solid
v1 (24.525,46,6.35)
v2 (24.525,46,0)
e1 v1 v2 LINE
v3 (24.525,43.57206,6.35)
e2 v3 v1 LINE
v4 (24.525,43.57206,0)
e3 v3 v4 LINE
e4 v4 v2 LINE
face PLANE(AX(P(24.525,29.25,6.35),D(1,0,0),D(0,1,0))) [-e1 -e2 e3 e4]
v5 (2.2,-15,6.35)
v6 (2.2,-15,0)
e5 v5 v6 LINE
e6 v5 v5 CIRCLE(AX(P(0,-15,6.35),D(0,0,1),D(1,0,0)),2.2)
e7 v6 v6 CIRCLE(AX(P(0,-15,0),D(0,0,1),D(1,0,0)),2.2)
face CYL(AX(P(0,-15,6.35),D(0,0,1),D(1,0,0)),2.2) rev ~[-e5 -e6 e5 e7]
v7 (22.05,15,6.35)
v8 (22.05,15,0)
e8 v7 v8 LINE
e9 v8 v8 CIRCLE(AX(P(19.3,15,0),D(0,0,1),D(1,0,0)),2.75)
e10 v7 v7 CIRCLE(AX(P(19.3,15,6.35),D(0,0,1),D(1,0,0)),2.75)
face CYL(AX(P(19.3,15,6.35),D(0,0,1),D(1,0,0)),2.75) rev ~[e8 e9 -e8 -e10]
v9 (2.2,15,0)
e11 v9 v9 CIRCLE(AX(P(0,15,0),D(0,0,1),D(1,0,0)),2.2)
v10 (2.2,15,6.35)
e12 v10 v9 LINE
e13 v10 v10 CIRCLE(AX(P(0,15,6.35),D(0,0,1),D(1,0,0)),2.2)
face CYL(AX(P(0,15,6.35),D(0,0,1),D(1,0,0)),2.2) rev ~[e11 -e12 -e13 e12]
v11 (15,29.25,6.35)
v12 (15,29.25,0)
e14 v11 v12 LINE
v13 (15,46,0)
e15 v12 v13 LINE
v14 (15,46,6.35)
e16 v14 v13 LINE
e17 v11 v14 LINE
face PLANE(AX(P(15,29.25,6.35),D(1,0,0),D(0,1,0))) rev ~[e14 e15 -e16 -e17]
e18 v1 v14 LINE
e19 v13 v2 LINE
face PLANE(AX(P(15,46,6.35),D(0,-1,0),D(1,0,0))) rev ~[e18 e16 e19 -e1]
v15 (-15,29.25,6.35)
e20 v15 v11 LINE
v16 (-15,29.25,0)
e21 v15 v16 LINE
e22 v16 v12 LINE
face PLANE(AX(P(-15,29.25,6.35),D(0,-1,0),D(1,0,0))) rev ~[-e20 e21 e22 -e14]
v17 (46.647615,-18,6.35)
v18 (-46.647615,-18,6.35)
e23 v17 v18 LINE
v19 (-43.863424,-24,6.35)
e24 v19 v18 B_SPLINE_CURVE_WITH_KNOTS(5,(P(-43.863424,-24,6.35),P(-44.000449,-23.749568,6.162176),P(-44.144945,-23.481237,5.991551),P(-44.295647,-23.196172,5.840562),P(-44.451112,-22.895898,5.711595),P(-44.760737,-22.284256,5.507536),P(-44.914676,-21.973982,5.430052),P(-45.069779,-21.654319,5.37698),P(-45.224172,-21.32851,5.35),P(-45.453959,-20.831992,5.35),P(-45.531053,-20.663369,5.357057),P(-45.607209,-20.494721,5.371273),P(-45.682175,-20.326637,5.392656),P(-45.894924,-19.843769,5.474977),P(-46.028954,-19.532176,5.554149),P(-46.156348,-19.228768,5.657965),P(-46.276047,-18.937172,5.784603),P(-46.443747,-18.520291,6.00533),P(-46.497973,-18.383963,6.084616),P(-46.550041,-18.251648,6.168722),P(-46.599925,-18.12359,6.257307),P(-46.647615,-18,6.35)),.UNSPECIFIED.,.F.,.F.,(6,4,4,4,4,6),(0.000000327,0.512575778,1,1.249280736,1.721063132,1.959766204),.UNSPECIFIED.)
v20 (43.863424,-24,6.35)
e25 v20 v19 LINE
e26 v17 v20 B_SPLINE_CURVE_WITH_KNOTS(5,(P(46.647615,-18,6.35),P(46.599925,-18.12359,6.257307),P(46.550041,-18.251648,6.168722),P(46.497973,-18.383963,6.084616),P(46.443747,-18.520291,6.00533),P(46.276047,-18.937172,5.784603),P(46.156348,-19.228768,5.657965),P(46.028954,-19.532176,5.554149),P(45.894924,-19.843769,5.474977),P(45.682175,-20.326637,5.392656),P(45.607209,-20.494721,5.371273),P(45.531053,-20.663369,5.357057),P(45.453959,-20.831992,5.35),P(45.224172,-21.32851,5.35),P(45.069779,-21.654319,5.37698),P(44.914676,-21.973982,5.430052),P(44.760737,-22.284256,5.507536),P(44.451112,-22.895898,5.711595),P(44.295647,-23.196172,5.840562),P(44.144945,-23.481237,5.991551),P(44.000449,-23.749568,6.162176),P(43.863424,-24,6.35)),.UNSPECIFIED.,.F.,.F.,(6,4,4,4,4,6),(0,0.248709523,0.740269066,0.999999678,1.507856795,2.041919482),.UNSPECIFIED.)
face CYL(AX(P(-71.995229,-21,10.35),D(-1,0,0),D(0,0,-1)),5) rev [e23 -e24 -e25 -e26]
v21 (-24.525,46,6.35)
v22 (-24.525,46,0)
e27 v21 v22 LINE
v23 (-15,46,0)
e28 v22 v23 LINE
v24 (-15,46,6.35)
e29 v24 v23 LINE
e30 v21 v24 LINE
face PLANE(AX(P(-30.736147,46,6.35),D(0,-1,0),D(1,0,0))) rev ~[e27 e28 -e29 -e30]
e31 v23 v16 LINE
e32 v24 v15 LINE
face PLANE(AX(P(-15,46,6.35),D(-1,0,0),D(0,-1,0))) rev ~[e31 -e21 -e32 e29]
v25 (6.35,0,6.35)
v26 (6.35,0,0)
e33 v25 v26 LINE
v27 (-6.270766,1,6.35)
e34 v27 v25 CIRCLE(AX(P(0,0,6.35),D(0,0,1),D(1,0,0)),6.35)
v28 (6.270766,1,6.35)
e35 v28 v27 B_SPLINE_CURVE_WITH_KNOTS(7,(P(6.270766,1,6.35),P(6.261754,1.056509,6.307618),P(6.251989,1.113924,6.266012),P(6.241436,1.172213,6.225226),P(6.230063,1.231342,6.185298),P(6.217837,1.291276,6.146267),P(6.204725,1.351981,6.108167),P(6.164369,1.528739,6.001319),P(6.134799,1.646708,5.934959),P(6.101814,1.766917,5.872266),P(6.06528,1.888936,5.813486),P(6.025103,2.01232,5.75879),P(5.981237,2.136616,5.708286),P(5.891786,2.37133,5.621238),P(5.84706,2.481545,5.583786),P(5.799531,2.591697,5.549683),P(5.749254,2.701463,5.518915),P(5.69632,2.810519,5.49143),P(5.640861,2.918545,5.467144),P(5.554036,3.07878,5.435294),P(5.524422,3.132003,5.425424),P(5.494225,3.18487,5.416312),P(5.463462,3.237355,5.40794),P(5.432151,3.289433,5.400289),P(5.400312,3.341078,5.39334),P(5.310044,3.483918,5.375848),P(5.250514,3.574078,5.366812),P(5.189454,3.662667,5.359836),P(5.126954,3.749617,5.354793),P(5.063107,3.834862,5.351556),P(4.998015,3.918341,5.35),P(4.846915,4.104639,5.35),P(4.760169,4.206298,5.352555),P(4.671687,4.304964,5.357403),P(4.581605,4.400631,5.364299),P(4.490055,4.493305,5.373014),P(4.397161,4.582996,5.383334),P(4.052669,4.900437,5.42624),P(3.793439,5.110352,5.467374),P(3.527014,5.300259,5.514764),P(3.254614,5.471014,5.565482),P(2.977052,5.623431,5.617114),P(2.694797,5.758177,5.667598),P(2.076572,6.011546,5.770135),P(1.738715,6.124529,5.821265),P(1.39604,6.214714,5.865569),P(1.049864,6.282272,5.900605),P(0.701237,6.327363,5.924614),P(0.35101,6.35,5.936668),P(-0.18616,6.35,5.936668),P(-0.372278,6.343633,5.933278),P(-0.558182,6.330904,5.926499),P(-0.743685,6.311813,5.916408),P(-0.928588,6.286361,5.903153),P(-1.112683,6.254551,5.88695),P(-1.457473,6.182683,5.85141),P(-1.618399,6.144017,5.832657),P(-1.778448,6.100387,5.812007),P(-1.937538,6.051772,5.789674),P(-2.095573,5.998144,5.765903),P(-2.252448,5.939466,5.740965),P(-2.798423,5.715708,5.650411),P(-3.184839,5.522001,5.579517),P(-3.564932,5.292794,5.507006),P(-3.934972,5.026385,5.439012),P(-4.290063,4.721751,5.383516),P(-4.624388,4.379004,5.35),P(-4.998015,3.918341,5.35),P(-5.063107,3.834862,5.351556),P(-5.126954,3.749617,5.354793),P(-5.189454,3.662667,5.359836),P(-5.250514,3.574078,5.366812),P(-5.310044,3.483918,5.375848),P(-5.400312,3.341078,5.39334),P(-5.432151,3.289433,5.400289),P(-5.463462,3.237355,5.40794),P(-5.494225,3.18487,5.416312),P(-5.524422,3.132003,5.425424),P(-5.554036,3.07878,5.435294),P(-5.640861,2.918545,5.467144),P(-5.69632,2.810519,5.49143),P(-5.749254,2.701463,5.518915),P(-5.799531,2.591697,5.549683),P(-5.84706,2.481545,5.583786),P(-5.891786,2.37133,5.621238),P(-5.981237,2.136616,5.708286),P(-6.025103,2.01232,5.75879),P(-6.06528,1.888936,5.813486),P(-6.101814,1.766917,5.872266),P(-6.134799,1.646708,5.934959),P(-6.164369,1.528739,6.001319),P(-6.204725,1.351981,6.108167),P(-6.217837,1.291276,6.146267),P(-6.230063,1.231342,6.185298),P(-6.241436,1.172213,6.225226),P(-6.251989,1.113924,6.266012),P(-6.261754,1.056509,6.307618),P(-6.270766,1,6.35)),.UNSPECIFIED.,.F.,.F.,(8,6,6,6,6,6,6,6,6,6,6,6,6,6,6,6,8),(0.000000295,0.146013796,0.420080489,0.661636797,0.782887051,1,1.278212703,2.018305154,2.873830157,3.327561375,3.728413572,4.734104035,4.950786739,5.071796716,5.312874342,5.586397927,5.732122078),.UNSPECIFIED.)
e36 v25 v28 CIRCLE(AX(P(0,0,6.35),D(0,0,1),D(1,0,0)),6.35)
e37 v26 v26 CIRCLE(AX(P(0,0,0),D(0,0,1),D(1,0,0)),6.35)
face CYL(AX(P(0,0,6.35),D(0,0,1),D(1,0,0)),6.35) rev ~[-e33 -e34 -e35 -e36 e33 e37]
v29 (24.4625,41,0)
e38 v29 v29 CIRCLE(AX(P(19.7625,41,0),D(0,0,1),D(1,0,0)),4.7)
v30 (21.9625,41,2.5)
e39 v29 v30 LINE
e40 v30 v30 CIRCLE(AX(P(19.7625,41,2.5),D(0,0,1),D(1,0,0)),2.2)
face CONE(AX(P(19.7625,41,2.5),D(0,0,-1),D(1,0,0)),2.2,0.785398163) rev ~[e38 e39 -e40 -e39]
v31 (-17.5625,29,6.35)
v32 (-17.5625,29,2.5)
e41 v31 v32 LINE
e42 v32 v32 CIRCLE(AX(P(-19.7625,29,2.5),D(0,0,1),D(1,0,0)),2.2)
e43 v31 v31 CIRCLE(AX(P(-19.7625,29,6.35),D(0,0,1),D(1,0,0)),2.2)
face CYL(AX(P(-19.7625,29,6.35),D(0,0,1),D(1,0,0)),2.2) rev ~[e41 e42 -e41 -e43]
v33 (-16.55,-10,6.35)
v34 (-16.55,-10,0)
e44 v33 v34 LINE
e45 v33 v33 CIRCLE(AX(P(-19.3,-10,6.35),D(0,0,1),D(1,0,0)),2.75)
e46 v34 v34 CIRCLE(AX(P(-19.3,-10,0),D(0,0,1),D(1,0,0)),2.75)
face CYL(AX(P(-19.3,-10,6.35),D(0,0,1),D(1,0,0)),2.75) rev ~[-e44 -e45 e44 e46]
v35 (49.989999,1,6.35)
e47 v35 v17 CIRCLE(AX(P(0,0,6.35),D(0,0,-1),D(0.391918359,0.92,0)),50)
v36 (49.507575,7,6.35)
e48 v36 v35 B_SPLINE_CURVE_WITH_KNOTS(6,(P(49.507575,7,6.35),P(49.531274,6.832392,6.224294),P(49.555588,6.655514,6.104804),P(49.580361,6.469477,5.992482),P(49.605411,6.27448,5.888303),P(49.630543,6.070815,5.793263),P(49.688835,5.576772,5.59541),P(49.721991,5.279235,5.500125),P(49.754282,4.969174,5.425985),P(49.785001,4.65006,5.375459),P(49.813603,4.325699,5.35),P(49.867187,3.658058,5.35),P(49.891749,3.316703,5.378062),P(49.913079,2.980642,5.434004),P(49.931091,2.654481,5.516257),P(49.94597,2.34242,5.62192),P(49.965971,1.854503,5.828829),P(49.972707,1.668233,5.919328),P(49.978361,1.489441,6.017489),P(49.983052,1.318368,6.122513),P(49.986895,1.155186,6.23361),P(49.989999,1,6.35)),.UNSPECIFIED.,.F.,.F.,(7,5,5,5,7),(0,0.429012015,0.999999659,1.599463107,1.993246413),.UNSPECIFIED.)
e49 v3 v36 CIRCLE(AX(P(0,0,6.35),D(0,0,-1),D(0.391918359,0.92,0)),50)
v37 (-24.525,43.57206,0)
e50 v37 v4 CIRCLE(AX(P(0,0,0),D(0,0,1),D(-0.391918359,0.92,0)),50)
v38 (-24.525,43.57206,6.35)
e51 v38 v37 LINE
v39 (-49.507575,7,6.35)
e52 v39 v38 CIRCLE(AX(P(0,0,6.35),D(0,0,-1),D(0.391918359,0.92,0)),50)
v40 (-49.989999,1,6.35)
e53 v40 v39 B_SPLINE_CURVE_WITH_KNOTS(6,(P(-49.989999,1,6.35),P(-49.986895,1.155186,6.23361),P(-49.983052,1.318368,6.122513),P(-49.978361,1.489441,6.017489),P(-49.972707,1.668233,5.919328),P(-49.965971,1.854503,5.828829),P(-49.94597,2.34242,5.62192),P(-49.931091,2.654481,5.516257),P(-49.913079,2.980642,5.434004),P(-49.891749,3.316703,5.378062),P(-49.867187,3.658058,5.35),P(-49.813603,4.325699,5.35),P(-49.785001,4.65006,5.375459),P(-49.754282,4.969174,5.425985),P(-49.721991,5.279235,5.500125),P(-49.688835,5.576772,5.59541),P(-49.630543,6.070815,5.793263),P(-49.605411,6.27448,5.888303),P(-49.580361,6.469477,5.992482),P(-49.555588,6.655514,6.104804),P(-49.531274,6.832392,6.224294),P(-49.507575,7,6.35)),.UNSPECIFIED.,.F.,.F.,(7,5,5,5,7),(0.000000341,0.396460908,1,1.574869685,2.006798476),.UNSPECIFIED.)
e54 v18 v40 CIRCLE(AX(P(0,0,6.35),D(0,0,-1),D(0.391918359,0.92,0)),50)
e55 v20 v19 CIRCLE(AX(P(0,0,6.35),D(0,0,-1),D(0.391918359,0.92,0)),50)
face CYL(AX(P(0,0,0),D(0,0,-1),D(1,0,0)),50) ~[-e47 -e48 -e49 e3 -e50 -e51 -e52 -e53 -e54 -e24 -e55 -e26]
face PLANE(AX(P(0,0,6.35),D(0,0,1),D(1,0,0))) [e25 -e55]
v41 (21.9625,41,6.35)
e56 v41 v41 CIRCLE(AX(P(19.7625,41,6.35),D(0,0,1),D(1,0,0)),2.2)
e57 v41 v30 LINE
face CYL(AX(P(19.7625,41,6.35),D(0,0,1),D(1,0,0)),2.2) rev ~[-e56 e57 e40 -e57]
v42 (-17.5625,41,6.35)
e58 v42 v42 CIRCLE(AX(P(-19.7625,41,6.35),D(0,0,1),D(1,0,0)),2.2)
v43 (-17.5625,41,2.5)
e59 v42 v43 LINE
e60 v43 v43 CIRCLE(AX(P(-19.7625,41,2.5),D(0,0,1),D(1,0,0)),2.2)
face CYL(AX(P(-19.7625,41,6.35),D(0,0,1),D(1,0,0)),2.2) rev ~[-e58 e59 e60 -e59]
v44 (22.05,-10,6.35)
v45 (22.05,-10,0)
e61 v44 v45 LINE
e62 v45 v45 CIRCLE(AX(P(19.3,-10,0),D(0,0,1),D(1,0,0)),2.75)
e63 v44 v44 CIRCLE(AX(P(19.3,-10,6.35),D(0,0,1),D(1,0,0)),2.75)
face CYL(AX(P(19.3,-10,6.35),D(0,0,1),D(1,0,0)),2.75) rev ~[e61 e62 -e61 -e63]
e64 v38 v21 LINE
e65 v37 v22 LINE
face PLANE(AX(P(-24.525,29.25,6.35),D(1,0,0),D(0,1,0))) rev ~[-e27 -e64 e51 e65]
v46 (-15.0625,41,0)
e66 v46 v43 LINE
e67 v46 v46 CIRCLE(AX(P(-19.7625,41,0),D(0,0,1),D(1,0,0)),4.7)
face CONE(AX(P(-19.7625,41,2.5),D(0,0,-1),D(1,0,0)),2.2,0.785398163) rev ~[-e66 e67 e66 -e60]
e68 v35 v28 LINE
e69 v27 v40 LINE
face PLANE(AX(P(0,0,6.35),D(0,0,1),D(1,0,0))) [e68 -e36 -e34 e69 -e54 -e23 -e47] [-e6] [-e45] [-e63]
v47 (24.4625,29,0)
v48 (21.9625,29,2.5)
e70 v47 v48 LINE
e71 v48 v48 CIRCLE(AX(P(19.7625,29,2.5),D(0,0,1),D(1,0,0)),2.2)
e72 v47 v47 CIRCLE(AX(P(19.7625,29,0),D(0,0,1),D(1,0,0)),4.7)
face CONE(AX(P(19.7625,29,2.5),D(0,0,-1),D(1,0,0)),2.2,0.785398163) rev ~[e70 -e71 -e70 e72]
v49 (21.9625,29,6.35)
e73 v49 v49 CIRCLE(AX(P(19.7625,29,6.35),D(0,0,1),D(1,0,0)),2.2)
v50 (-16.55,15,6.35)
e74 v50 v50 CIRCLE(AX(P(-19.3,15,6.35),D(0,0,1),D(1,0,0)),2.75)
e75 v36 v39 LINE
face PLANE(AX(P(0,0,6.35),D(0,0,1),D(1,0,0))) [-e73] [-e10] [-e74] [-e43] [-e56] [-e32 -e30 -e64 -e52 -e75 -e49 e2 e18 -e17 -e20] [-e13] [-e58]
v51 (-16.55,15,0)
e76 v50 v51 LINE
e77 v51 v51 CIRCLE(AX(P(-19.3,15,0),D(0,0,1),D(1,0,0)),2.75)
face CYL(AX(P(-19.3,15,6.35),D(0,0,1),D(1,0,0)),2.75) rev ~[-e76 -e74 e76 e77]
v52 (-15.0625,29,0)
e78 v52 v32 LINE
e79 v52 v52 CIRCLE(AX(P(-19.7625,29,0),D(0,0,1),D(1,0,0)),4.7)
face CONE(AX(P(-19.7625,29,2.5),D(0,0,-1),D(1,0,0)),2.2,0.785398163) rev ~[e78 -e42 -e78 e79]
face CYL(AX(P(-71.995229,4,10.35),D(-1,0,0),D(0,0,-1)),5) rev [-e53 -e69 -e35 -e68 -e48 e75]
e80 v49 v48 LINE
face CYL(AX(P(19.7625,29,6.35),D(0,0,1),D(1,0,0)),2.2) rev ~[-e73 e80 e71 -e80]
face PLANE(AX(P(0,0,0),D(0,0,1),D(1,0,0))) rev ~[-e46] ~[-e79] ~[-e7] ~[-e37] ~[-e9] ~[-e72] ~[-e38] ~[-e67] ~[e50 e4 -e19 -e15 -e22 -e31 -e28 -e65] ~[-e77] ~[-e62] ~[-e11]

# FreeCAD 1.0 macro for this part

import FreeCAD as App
import Part
import Sketcher
from FreeCAD import Vector
Q = App.Units.Quantity


def edges_at(feature, points):
    """Names of the edges that pass closest to the given points."""
    edges = feature.Shape.Edges
    near = lambda p: min(range(len(edges)), key=lambda i: edges[i].distToShape(Part.Vertex(*p))[0])
    return sorted({f"Edge{near(p) + 1}" for p in points})


def add_polygon(sketch, points):
    """Adds a closed chain of lines whose ends are joined by coincident constraints."""
    first, n = sketch.GeometryCount, len(points)
    for a, b in zip(points, points[1:] + points[:1]):
        sketch.addGeometry(Part.LineSegment(App.Vector(*a, 0), App.Vector(*b, 0)), False)
    for i in range(n):
        sketch.addConstraint(Sketcher.Constraint("Coincident", first + i, 2, first + (i + 1) % n, 1))

doc = App.newDocument("Part")
body = doc.addObject("PartDesign::Body", "Body")

sketch1 = body.newObject("Sketcher::SketchObject", "Sketch")
sketch1.AttachmentSupport = (doc.getObject("XY_Plane"), [""])
sketch1.MapMode = "FlatFace"
sketch1.addGeometry(Part.Circle(Vector(0, 0, 0), Vector(0, 0, 1), 50), False)
sketch1.addConstraint([
    Sketcher.Constraint("Coincident", 0, 3, -1, 1),
    Sketcher.Constraint("Diameter", 0, Q("100 mm")),
])
pad1 = body.newObject("PartDesign::Pad", "Pad")
pad1.Profile = sketch1
pad1.Length = 6.35

sketch2 = body.newObject("Sketcher::SketchObject", "Sketch001")
sketch2.AttachmentSupport = (doc.getObject("XY_Plane"), [""])
sketch2.MapMode = "FlatFace"
sketch2.AttachmentOffset = App.Placement(Vector(0, 0, 6.35), App.Rotation())
add_polygon(sketch2, [(-15, 46), (-15, 29), (15, 29), (15, 46), (28, 46), (28, 76), (-31, 76), (-31, 46)])
sketch2.addConstraint([
    Sketcher.Constraint("Vertical", 0),
    Sketcher.Constraint("Horizontal", 1),
    Sketcher.Constraint("Vertical", 2),
    Sketcher.Constraint("Horizontal", 3),
    Sketcher.Constraint("Vertical", 4),
    Sketcher.Constraint("Horizontal", 5),
    Sketcher.Constraint("Vertical", 6),
    Sketcher.Constraint("Horizontal", 7),
    Sketcher.Constraint("Symmetric", 2, 2, 7, 2, -2),
    Sketcher.Constraint("DistanceX", 1, 1, 1, 2, Q("30 mm")),
    Sketcher.Constraint("DistanceY", -1, 1, 2, 2, Q("46 mm")),
    Sketcher.Constraint("DistanceY", 0, 2, 0, 1, Q("16.75 mm")),
    Sketcher.Constraint("DistanceX", 5, 2, 5, 1, Q("58.836351 mm")),
    Sketcher.Constraint("DistanceX", 3, 1, 3, 2, Q("13.100204 mm")),
    Sketcher.Constraint("DistanceY", 4, 1, 4, 2, Q("30.142415 mm")),
])
pocket1 = body.newObject("PartDesign::Pocket", "Pocket")
pocket1.Profile = sketch2
pocket1.Length = 6.35

sketch3 = body.newObject("Sketcher::SketchObject", "Sketch002")
sketch3.AttachmentSupport = (doc.getObject("XY_Plane"), [""])
sketch3.MapMode = "FlatFace"
sketch3.AttachmentOffset = App.Placement(Vector(0, 0, 6.35), App.Rotation())
add_polygon(sketch3, [(-25, 46), (-25, 29), (-15, 29), (-15, 46)])
add_polygon(sketch3, [(15, 46), (15, 29), (25, 29), (25, 46)])
sketch3.addConstraint([
    Sketcher.Constraint("Vertical", 0),
    Sketcher.Constraint("Horizontal", 1),
    Sketcher.Constraint("Vertical", 2),
    Sketcher.Constraint("Horizontal", 3),
    Sketcher.Constraint("Vertical", 4),
    Sketcher.Constraint("Horizontal", 5),
    Sketcher.Constraint("Vertical", 6),
    Sketcher.Constraint("Horizontal", 7),
    Sketcher.Constraint("Symmetric", 1, 2, 4, 2, -2),
    Sketcher.Constraint("Symmetric", 3, 2, 6, 2, -2),
    Sketcher.Constraint("DistanceX", 1, 2, -1, 1, Q("15 mm")),
    Sketcher.Constraint("DistanceY", -1, 1, 2, 2, Q("46 mm")),
    Sketcher.Constraint("DistanceY", 0, 2, 0, 1, Q("16.75 mm")),
    Sketcher.Constraint("DistanceX", 1, 1, 1, 2, Q("9.525 mm")),
])
pad2 = body.newObject("PartDesign::Pad", "Pad001")
pad2.Profile = sketch3
pad2.Length = 6.35
pad2.Reversed = True

sketch4 = body.newObject("Sketcher::SketchObject", "Sketch003")
sketch4.AttachmentSupport = (doc.getObject("XY_Plane"), [""])
sketch4.MapMode = "FlatFace"
sketch4.AttachmentOffset = App.Placement(Vector(0, 0, 6.35), App.Rotation())
sketch4.addGeometry([
    Part.Circle(Vector(-19.8, 41, 0), Vector(0, 0, 1), 2.2),
    Part.Circle(Vector(-19.8, 29, 0), Vector(0, 0, 1), 2.2),
    Part.Circle(Vector(19.8, 29, 0), Vector(0, 0, 1), 2.2),
    Part.Circle(Vector(19.8, 41, 0), Vector(0, 0, 1), 2.2),
], False)
sketch4.addConstraint([
    Sketcher.Constraint("Equal", 0, 1),
    Sketcher.Constraint("Equal", 1, 2),
    Sketcher.Constraint("Equal", 2, 3),
    Sketcher.Constraint("Symmetric", 1, 3, 2, 3, -2),
    Sketcher.Constraint("Symmetric", 0, 3, 3, 3, -2),
    Sketcher.Constraint("Vertical", 0, 3, 1, 3),
    Sketcher.Constraint("Diameter", 0, Q("4.4 mm")),
    Sketcher.Constraint("DistanceY", -1, 1, 0, 3, Q("41 mm")),
    Sketcher.Constraint("DistanceY", -1, 1, 1, 3, Q("29 mm")),
    Sketcher.Constraint("DistanceX", 1, 3, 2, 3, Q("39.525 mm")),
])
pocket2 = body.newObject("PartDesign::Pocket", "Pocket001")
pocket2.Profile = sketch4
pocket2.Length = 6.35

sketch5 = body.newObject("Sketcher::SketchObject", "Sketch004")
sketch5.AttachmentSupport = (doc.getObject("XY_Plane"), [""])
sketch5.MapMode = "FlatFace"
sketch5.AttachmentOffset = App.Placement(Vector(0, 0, 6.35), App.Rotation())
sketch5.addGeometry(Part.Circle(Vector(0, 0, 0), Vector(0, 0, 1), 6), False)
sketch5.addConstraint([
    Sketcher.Constraint("Coincident", 0, 3, -1, 1),
    Sketcher.Constraint("Diameter", 0, Q("12.7 mm")),
])
pocket3 = body.newObject("PartDesign::Pocket", "Pocket002")
pocket3.Profile = sketch5
pocket3.Length = 6.35

sketch6 = body.newObject("Sketcher::SketchObject", "Sketch005")
sketch6.AttachmentSupport = (doc.getObject("XY_Plane"), [""])
sketch6.MapMode = "FlatFace"
sketch6.AttachmentOffset = App.Placement(Vector(0, 0, 6.35), App.Rotation())
sketch6.addGeometry([
    Part.Circle(Vector(0, 15, 0), Vector(0, 0, 1), 2.2),
    Part.Circle(Vector(0, -15, 0), Vector(0, 0, 1), 2.2),
], False)
sketch6.addConstraint([
    Sketcher.Constraint("Equal", 0, 1),
    Sketcher.Constraint("Symmetric", 0, 3, 1, 3, -1, 1),
    Sketcher.Constraint("PointOnObject", 0, 3, -2),
    Sketcher.Constraint("Diameter", 0, Q("4.4 mm")),
    Sketcher.Constraint("DistanceY", -1, 1, 0, 3, Q("15 mm")),
])
pocket4 = body.newObject("PartDesign::Pocket", "Pocket003")
pocket4.Profile = sketch6
pocket4.Length = 6.35

sketch7 = body.newObject("Sketcher::SketchObject", "Sketch006")
sketch7.AttachmentSupport = (doc.getObject("XY_Plane"), [""])
sketch7.MapMode = "FlatFace"
sketch7.AttachmentOffset = App.Placement(Vector(0, 0, 6.35), App.Rotation())
sketch7.addGeometry([
    Part.Circle(Vector(-19.3, 15, 0), Vector(0, 0, 1), 2.8),
    Part.Circle(Vector(-19.3, -10, 0), Vector(0, 0, 1), 2.8),
    Part.Circle(Vector(19.3, -10, 0), Vector(0, 0, 1), 2.8),
    Part.Circle(Vector(19.3, 15, 0), Vector(0, 0, 1), 2.8),
], False)
sketch7.addConstraint([
    Sketcher.Constraint("Equal", 0, 1),
    Sketcher.Constraint("Equal", 1, 2),
    Sketcher.Constraint("Equal", 2, 3),
    Sketcher.Constraint("Symmetric", 1, 3, 2, 3, -2),
    Sketcher.Constraint("Symmetric", 0, 3, 3, 3, -2),
    Sketcher.Constraint("Vertical", 0, 3, 1, 3),
    Sketcher.Constraint("Diameter", 0, Q("5.5 mm")),
    Sketcher.Constraint("DistanceY", -1, 1, 0, 3, Q("15 mm")),
    Sketcher.Constraint("DistanceY", 1, 3, -1, 1, Q("10 mm")),
    Sketcher.Constraint("DistanceX", 0, 3, -1, 1, Q("19.3 mm")),
])
pocket5 = body.newObject("PartDesign::Pocket", "Pocket004")
pocket5.Profile = sketch7
pocket5.Length = 6.35
doc.recompute()

chamfer = body.newObject("PartDesign::Chamfer", "Chamfer")
chamfer.Base = (pocket5, edges_at(pocket5, [
    (17.562, 41, 0),
    (17.562, 29, 0),
    (-21.962, 29, 0),
    (-21.962, 41, 0),
]))
chamfer.Size = 2.5

sketch8 = body.newObject("Sketcher::SketchObject", "Sketch007")
sketch8.AttachmentSupport = (doc.getObject("YZ_Plane"), [""])
sketch8.MapMode = "FlatFace"
sketch8.addGeometry([
    Part.Circle(Vector(4, 10, 0), Vector(0, 0, 1), 5),
    Part.Circle(Vector(-21, 10, 0), Vector(0, 0, 1), 5),
], False)
sketch8.addConstraint([
    Sketcher.Constraint("Equal", 0, 1),
    Sketcher.Constraint("Horizontal", 0, 3, 1, 3),
    Sketcher.Constraint("Diameter", 0, Q("10 mm")),
    Sketcher.Constraint("DistanceX", -1, 1, 0, 3, Q("4 mm")),
    Sketcher.Constraint("DistanceX", 1, 3, -1, 1, Q("21 mm")),
    Sketcher.Constraint("DistanceY", -1, 1, 0, 3, Q("10.35 mm")),
])
pocket6 = body.newObject("PartDesign::Pocket", "Pocket005")
pocket6.Profile = sketch8
pocket6.Type = "ThroughAll"
pocket6.Midplane = True

doc.recompute()
